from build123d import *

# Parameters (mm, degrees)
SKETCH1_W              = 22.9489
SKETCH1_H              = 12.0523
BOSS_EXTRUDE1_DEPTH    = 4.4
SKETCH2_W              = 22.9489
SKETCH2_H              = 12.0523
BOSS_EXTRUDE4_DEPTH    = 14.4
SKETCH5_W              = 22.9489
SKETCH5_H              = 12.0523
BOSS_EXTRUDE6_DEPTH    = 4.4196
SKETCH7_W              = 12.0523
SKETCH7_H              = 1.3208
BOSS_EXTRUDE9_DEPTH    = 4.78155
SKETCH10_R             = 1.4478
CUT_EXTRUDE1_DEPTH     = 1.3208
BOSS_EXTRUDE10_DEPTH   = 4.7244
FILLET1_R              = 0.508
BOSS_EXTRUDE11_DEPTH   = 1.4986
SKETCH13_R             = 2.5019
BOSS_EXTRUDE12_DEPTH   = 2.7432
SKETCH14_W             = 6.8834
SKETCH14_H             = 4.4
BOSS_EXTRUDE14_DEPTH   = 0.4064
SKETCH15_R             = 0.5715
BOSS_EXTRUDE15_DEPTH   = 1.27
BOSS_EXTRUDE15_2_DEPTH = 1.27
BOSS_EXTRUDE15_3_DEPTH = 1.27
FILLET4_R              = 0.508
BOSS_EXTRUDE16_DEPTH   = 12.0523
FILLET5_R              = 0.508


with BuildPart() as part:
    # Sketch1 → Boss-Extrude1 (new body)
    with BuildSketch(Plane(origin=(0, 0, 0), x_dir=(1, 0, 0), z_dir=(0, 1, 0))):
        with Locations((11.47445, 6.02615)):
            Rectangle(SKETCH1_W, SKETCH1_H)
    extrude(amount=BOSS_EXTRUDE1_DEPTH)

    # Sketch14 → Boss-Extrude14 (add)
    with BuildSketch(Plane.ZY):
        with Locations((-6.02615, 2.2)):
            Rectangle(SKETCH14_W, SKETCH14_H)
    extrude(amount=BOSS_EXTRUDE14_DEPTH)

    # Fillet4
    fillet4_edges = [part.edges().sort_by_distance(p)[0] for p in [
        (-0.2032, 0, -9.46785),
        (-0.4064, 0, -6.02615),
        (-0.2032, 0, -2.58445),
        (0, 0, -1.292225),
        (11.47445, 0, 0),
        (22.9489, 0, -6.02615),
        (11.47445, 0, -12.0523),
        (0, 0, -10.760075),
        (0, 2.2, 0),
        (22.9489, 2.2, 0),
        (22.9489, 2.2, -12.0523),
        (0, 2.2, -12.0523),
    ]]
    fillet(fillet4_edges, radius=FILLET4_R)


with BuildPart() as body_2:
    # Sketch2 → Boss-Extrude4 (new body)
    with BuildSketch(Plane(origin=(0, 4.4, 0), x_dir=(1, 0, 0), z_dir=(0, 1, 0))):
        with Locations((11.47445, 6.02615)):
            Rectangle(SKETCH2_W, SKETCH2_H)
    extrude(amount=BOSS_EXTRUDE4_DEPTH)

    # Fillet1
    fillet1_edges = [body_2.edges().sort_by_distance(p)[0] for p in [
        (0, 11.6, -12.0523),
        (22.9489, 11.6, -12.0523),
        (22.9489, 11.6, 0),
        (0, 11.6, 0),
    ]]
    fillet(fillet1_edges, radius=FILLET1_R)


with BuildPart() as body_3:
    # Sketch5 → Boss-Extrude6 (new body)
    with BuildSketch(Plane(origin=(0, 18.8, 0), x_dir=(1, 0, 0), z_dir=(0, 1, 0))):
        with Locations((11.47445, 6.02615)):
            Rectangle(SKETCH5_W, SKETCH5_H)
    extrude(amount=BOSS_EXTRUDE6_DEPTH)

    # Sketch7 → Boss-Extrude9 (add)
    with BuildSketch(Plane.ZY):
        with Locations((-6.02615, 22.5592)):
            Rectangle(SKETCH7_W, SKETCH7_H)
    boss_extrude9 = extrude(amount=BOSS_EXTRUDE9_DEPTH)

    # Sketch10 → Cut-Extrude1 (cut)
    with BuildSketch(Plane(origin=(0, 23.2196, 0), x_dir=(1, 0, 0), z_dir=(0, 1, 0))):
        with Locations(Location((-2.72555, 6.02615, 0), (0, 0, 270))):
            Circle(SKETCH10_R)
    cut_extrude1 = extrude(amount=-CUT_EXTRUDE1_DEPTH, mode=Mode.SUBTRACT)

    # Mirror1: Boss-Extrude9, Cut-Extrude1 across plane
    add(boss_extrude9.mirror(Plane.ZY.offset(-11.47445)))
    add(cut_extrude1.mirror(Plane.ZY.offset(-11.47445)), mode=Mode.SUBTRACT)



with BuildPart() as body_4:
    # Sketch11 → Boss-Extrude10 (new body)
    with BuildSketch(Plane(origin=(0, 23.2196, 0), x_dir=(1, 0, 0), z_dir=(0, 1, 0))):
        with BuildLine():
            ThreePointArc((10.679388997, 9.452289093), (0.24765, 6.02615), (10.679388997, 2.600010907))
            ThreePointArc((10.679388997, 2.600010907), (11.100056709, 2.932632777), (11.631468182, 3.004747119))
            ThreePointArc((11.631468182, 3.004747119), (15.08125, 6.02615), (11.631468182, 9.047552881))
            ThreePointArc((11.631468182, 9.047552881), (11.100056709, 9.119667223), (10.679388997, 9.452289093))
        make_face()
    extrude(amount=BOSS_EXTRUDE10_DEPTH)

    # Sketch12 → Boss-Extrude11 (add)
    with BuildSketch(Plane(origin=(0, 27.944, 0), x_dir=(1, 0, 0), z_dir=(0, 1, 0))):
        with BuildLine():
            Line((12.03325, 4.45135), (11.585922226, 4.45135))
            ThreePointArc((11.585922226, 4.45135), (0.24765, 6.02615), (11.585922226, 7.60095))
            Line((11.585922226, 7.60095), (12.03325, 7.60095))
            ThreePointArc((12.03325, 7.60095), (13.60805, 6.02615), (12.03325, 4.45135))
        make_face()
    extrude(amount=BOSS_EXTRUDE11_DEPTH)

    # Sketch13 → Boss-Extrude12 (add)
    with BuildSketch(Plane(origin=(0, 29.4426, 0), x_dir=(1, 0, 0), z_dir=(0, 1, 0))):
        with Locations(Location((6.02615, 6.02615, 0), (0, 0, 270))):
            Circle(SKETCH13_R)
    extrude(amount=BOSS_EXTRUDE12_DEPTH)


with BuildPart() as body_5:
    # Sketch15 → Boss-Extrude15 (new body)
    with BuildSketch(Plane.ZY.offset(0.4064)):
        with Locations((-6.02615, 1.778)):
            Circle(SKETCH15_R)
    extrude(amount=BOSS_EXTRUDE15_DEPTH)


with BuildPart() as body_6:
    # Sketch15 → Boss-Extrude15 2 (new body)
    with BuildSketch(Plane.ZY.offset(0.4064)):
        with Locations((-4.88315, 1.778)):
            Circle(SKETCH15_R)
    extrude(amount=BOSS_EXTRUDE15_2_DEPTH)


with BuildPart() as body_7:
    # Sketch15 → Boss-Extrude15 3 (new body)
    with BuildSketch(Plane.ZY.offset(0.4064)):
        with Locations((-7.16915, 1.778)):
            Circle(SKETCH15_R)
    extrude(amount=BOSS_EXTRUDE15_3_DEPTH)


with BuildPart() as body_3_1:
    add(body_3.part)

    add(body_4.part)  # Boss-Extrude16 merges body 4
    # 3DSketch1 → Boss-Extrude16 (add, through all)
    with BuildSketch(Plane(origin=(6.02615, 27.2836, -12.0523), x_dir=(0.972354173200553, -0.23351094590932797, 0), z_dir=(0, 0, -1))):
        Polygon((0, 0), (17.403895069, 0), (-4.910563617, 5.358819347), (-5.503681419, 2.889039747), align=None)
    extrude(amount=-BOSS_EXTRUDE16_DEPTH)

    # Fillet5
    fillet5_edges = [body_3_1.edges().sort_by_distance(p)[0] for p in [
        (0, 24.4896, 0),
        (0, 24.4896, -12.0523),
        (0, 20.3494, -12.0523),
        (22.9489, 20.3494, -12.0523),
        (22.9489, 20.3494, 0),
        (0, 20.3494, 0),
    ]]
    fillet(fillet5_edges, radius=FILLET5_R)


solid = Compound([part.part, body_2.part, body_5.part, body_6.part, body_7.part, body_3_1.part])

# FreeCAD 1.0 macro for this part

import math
import FreeCAD as App
import Part
import Sketcher
Q = App.Units.Quantity


def edges_at(feature, points):
    """Names of the edges that pass closest to the given points."""
    edges = feature.Shape.Edges
    near = lambda p: min(range(len(edges)), key=lambda i: edges[i].distToShape(Part.Vertex(*p))[0])
    return sorted({f"Edge{near(p) + 1}" for p in points})

doc = App.newDocument("Part")
body = doc.addObject("PartDesign::Body", "Body")

# Sketch on XZ plane
sketch1 = body.newObject("Sketcher::SketchObject", "Sketch")
sketch1.AttachmentSupport = (doc.getObject("XZ_Plane"), [""])
sketch1.MapMode = "FlatFace"
sketch1.addGeometry([
    Part.LineSegment(App.Vector(0, -12, 0), App.Vector(0, 0, 0)),
    Part.LineSegment(App.Vector(0, 0, 0), App.Vector(23, 0, 0)),
    Part.LineSegment(App.Vector(23, 0, 0), App.Vector(23, -12, 0)),
    Part.LineSegment(App.Vector(23, -12, 0), App.Vector(0, -12, 0)),
], False)
sketch1.addConstraint([
    Sketcher.Constraint("Coincident", 0, 2, 1, 1),
    Sketcher.Constraint("Coincident", 1, 2, 2, 1),
    Sketcher.Constraint("Coincident", 2, 2, 3, 1),
    Sketcher.Constraint("Coincident", 3, 2, 0, 1),
    Sketcher.Constraint("Vertical", 0),
    Sketcher.Constraint("Horizontal", 1),
    Sketcher.Constraint("Vertical", 2),
    Sketcher.Constraint("Horizontal", 3),
    Sketcher.Constraint("Coincident", 0, 2, -1, 1),
    Sketcher.Constraint("DistanceX", 1, 1, 1, 2, Q("0.9035 in")),
    Sketcher.Constraint("DistanceY", 0, 1, 0, 2, Q("0.4745 in")),
])
pad1 = body.newObject("PartDesign::Pad", "Pad")
pad1.Profile = sketch1
pad1.Length = 4.4
pad1.Reversed = True

# Sketch on YZ plane
sketch2 = body.newObject("Sketcher::SketchObject", "Sketch001")
sketch2.AttachmentSupport = (doc.getObject("YZ_Plane"), [""])
sketch2.MapMode = "FlatFace"
sketch2.addGeometry([
    Part.LineSegment(App.Vector(4.4, -9.5, 0), App.Vector(0, -9.5, 0)),
    Part.LineSegment(App.Vector(0, -9.5, 0), App.Vector(0, -2.6, 0)),
    Part.LineSegment(App.Vector(0, -2.6, 0), App.Vector(4.4, -2.6, 0)),
    Part.LineSegment(App.Vector(4.4, -2.6, 0), App.Vector(4.4, -9.5, 0)),
], False)
sketch2.addConstraint([
    Sketcher.Constraint("Coincident", 0, 2, 1, 1),
    Sketcher.Constraint("Coincident", 1, 2, 2, 1),
    Sketcher.Constraint("Coincident", 2, 2, 3, 1),
    Sketcher.Constraint("Coincident", 3, 2, 0, 1),
    Sketcher.Constraint("Horizontal", 0),
    Sketcher.Constraint("Vertical", 1),
    Sketcher.Constraint("Horizontal", 2),
    Sketcher.Constraint("Vertical", 3),
    Sketcher.Constraint("PointOnObject", 0, 2, -2),
    Sketcher.Constraint("DistanceY", 1, 1, 1, 2, Q("0.271 in")),
    Sketcher.Constraint("DistanceX", 0, 2, 0, 1, 4.4),
    Sketcher.Constraint("DistanceY", 0, 2, -1, 1, 9.46785),
])
pad2 = body.newObject("PartDesign::Pad", "Pad001")
pad2.Profile = sketch2
pad2.Length = Q("0.016 in")
pad2.Reversed = True
doc.recompute()

fillet = body.newObject("PartDesign::Fillet", "Fillet")
fillet.Base = (pad2, edges_at(pad2, [
    (-0.203, 0, -9.468),
    (-0.406, 0, -6.026),
    (-0.203, 0, -2.584),
    (0, 0, -1.292),
    (11.474, 0, 0),
    (22.949, 0, -6.026),
    (11.474, 0, -12.052),
    (0, 0, -10.76),
    (0, 2.2, 0),
    (22.949, 2.2, 0),
    (22.949, 2.2, -12.052),
    (0, 2.2, -12.052),
]))
fillet.Radius = Q("0.02 in")
body2 = doc.addObject("PartDesign::Body", "Body001")

# Sketch on XZ plane
sketch3 = body2.newObject("Sketcher::SketchObject", "Sketch002")
sketch3.AttachmentSupport = (doc.getObject("XZ_Plane001"), [""])
sketch3.MapMode = "FlatFace"
sketch3.AttachmentOffset = App.Placement(App.Vector(0, 0, -4.4), App.Rotation())
sketch3.addGeometry([
    Part.LineSegment(App.Vector(0, -12, 0), App.Vector(0, 0, 0)),
    Part.LineSegment(App.Vector(0, 0, 0), App.Vector(23, 0, 0)),
    Part.LineSegment(App.Vector(23, 0, 0), App.Vector(23, -12, 0)),
    Part.LineSegment(App.Vector(23, -12, 0), App.Vector(0, -12, 0)),
], False)
sketch3.addConstraint([
    Sketcher.Constraint("Coincident", 0, 2, 1, 1),
    Sketcher.Constraint("Coincident", 1, 2, 2, 1),
    Sketcher.Constraint("Coincident", 2, 2, 3, 1),
    Sketcher.Constraint("Coincident", 3, 2, 0, 1),
    Sketcher.Constraint("Vertical", 0),
    Sketcher.Constraint("Horizontal", 1),
    Sketcher.Constraint("Vertical", 2),
    Sketcher.Constraint("Horizontal", 3),
    Sketcher.Constraint("Coincident", 0, 2, -1, 1),
    Sketcher.Constraint("DistanceX", 1, 1, 1, 2, Q("0.9035 in")),
    Sketcher.Constraint("DistanceY", 0, 1, 0, 2, Q("0.4745 in")),
])
pad3 = body2.newObject("PartDesign::Pad", "Pad002")
pad3.Profile = sketch3
pad3.Length = 14.4
pad3.Reversed = True
doc.recompute()

fillet2 = body2.newObject("PartDesign::Fillet", "Fillet001")
fillet2.Base = (pad3, edges_at(pad3, [
    (0, 11.6, -12.052),
    (22.949, 11.6, -12.052),
    (22.949, 11.6, 0),
    (0, 11.6, 0),
]))
fillet2.Radius = Q("0.02 in")
body3 = doc.addObject("PartDesign::Body", "Body002")

# Sketch on XZ plane
sketch4 = body3.newObject("Sketcher::SketchObject", "Sketch003")
sketch4.AttachmentSupport = (doc.getObject("XZ_Plane002"), [""])
sketch4.MapMode = "FlatFace"
sketch4.AttachmentOffset = App.Placement(App.Vector(0, 0, -18.8), App.Rotation())
sketch4.addGeometry([
    Part.LineSegment(App.Vector(0, -12, 0), App.Vector(0, 0, 0)),
    Part.LineSegment(App.Vector(0, 0, 0), App.Vector(23, 0, 0)),
    Part.LineSegment(App.Vector(23, 0, 0), App.Vector(23, -12, 0)),
    Part.LineSegment(App.Vector(23, -12, 0), App.Vector(0, -12, 0)),
], False)
sketch4.addConstraint([
    Sketcher.Constraint("Coincident", 0, 2, 1, 1),
    Sketcher.Constraint("Coincident", 1, 2, 2, 1),
    Sketcher.Constraint("Coincident", 2, 2, 3, 1),
    Sketcher.Constraint("Coincident", 3, 2, 0, 1),
    Sketcher.Constraint("Vertical", 0),
    Sketcher.Constraint("Horizontal", 1),
    Sketcher.Constraint("Vertical", 2),
    Sketcher.Constraint("Horizontal", 3),
    Sketcher.Constraint("Coincident", 0, 2, -1, 1),
    Sketcher.Constraint("DistanceX", 1, 1, 1, 2, Q("0.9035 in")),
    Sketcher.Constraint("DistanceY", 0, 1, 0, 2, Q("0.4745 in")),
])
pad4 = body3.newObject("PartDesign::Pad", "Pad003")
pad4.Profile = sketch4
pad4.Length = Q("0.174 in")
pad4.Reversed = True

# Sketch on YZ plane
sketch5 = body3.newObject("Sketcher::SketchObject", "Sketch004")
sketch5.AttachmentSupport = (doc.getObject("YZ_Plane002"), [""])
sketch5.MapMode = "FlatFace"
sketch5.addGeometry([
    Part.LineSegment(App.Vector(23.2, -12.1, 0), App.Vector(21.9, -12.1, 0)),
    Part.LineSegment(App.Vector(21.9, -12.1, 0), App.Vector(21.9, 0, 0)),
    Part.LineSegment(App.Vector(21.9, 0, 0), App.Vector(23.2, 0, 0)),
    Part.LineSegment(App.Vector(23.2, 0, 0), App.Vector(23.2, -12.1, 0)),
], False)
sketch5.addConstraint([
    Sketcher.Constraint("Coincident", 0, 2, 1, 1),
    Sketcher.Constraint("Coincident", 1, 2, 2, 1),
    Sketcher.Constraint("Coincident", 2, 2, 3, 1),
    Sketcher.Constraint("Coincident", 3, 2, 0, 1),
    Sketcher.Constraint("Horizontal", 0),
    Sketcher.Constraint("Vertical", 1),
    Sketcher.Constraint("Horizontal", 2),
    Sketcher.Constraint("Vertical", 3),
    Sketcher.Constraint("PointOnObject", 1, 2, -1),
    Sketcher.Constraint("DistanceX", 0, 2, 0, 1, Q("0.052 in")),
    Sketcher.Constraint("DistanceY", 1, 1, 1, 2, Q("0.4745 in")),
    Sketcher.Constraint("DistanceX", -1, 1, 0, 2, 21.8988),
])
pad5 = body3.newObject("PartDesign::Pad", "Pad004")
pad5.Profile = sketch5
pad5.Length = 4.78155
pad5.Reversed = True

# Sketch on XZ plane
sketch6 = body3.newObject("Sketcher::SketchObject", "Sketch005")
sketch6.AttachmentSupport = (doc.getObject("XZ_Plane002"), [""])
sketch6.MapMode = "FlatFace"
sketch6.AttachmentOffset = App.Placement(App.Vector(0, 0, -23.2196), App.Rotation())
sketch6.addGeometry(Part.Circle(App.Vector(-2.7, -6, 0), App.Vector(0, 0, 1), 1.4), False)
sketch6.addConstraint([
    Sketcher.Constraint("Diameter", 0, Q("0.114 in")),
    Sketcher.Constraint("DistanceX", 0, 3, -1, 1, 2.72555),
    Sketcher.Constraint("DistanceY", 0, 3, -1, 1, 6.02615),
])
pocket1 = body3.newObject("PartDesign::Pocket", "Pocket")
pocket1.Profile = sketch6
pocket1.Length = Q("0.052 in")
pocket1.Reversed = True
doc.recompute()

datumplane = body3.newObject("PartDesign::Plane", "DatumPlane")
datumplane.AttachmentSupport = (doc.getObject("YZ_Plane002"), [""])
datumplane.MapMode = "FlatFace"
datumplane.AttachmentOffset = App.Placement(App.Vector(0, 0, 11.47445), App.Rotation())
mirrored = body3.newObject("PartDesign::Mirrored", "Mirrored")
mirrored.Originals = [pad5, pocket1]
mirrored.MirrorPlane = (datumplane, [""])
body3.Tip = mirrored
body4 = doc.addObject("PartDesign::Body", "Body003")

# Sketch on XZ plane
sketch7 = body4.newObject("Sketcher::SketchObject", "Sketch006")
sketch7.AttachmentSupport = (doc.getObject("XZ_Plane003"), [""])
sketch7.MapMode = "FlatFace"
sketch7.AttachmentOffset = App.Placement(App.Vector(0, 0, -23.2196), App.Rotation())
sketch7.addGeometry([
    Part.ArcOfCircle(Part.Circle(App.Vector(6, -6, 0), App.Vector(0, 0, 1), 5.8), math.radians(36), math.radians(324)),
    Part.ArcOfCircle(Part.Circle(App.Vector(11.5, -2, 0), App.Vector(0, 0, 1), 1), math.radians(-144), math.radians(-82)),
    Part.ArcOfCircle(Part.Circle(App.Vector(12, -6, 0), App.Vector(0, 0, 1), 3), math.radians(-98), math.radians(98)),
    Part.ArcOfCircle(Part.Circle(App.Vector(11.5, -10.1, 0), App.Vector(0, 0, 1), 1), math.radians(82), math.radians(144)),
], False)
sketch7.addConstraint([
    Sketcher.Constraint("Tangent", 0, 1, 1, 1),
    Sketcher.Constraint("Tangent", 1, 2, 2, 2),
    Sketcher.Constraint("Tangent", 2, 1, 3, 1),
    Sketcher.Constraint("Tangent", 3, 2, 0, 2),
    Sketcher.Constraint("Equal", 1, 3),
    Sketcher.Constraint("Horizontal", 0, 3, 2, 3),
    Sketcher.Constraint("Radius", 1, Q("0.04 in")),
    Sketcher.Constraint("Radius", 2, Q("0.12 in")),
    Sketcher.Constraint("Radius", 0, Q("0.2275 in")),
    Sketcher.Constraint("DistanceX", 0, 3, 2, 3, Q("0.2365 in")),
    Sketcher.Constraint("DistanceX", -1, 1, 0, 3, 6.02615),
    Sketcher.Constraint("DistanceY", 0, 3, -1, 1, 6.02615),
])
pad6 = body4.newObject("PartDesign::Pad", "Pad005")
pad6.Profile = sketch7
pad6.Length = Q("0.186 in")
pad6.Reversed = True

# Sketch on XZ plane
sketch8 = body4.newObject("Sketcher::SketchObject", "Sketch007")
sketch8.AttachmentSupport = (doc.getObject("XZ_Plane003"), [""])
sketch8.MapMode = "FlatFace"
sketch8.AttachmentOffset = App.Placement(App.Vector(0, 0, -27.944), App.Rotation())
sketch8.addGeometry([
    Part.LineSegment(App.Vector(11.59, -4.45, 0), App.Vector(12.03, -4.45, 0)),
    Part.ArcOfCircle(Part.Circle(App.Vector(12.03, -6.03, 0), App.Vector(0, 0, 1), 1.57), math.radians(-90), math.radians(90)),
    Part.LineSegment(App.Vector(12.03, -7.6, 0), App.Vector(11.59, -7.6, 0)),
    Part.ArcOfCircle(Part.Circle(App.Vector(6.03, -6.03, 0), App.Vector(0, 0, 1), 5.78), math.radians(16), math.radians(344)),
], False)
sketch8.addConstraint([
    Sketcher.Constraint("Tangent", 0, 2, 1, 2),
    Sketcher.Constraint("Tangent", 1, 1, 2, 1),
    Sketcher.Constraint("Coincident", 2, 2, 3, 2),
    Sketcher.Constraint("Coincident", 3, 1, 0, 1),
    Sketcher.Constraint("Horizontal", 0),
    Sketcher.Constraint("Horizontal", 2),
    Sketcher.Constraint("Horizontal", 1, 3, 3, 3),
    Sketcher.Constraint("Radius", 1, Q("0.062 in")),
    Sketcher.Constraint("Radius", 3, Q("0.2275 in")),
    Sketcher.Constraint("DistanceX", 3, 3, 1, 3, Q("0.2365 in")),
    Sketcher.Constraint("DistanceX", -1, 1, 1, 3, 12.03325),
    Sketcher.Constraint("DistanceY", 1, 3, -1, 1, 6.02615),
])
pad7 = body4.newObject("PartDesign::Pad", "Pad006")
pad7.Profile = sketch8
pad7.Length = Q("0.059 in")
pad7.Reversed = True

# Sketch on XZ plane
sketch9 = body4.newObject("Sketcher::SketchObject", "Sketch008")
sketch9.AttachmentSupport = (doc.getObject("XZ_Plane003"), [""])
sketch9.MapMode = "FlatFace"
sketch9.AttachmentOffset = App.Placement(App.Vector(0, 0, -29.4426), App.Rotation())
sketch9.addGeometry(Part.Circle(App.Vector(6, -6, 0), App.Vector(0, 0, 1), 2.5), False)
sketch9.addConstraint([
    Sketcher.Constraint("Diameter", 0, Q("0.197 in")),
    Sketcher.Constraint("DistanceX", -1, 1, 0, 3, 6.02615),
    Sketcher.Constraint("DistanceY", 0, 3, -1, 1, 6.02615),
])
pad8 = body4.newObject("PartDesign::Pad", "Pad007")
pad8.Profile = sketch9
pad8.Length = Q("0.108 in")
pad8.Reversed = True
body5 = doc.addObject("PartDesign::Body", "Body004")

# Sketch on YZ plane
sketch10 = body5.newObject("Sketcher::SketchObject", "Sketch009")
sketch10.AttachmentSupport = (doc.getObject("YZ_Plane004"), [""])
sketch10.MapMode = "FlatFace"
sketch10.AttachmentOffset = App.Placement(App.Vector(0, 0, -0.016 * 25.4), App.Rotation())
sketch10.addGeometry(Part.Circle(App.Vector(1.8, -6, 0), App.Vector(0, 0, 1), 0.6), False)
sketch10.addConstraint([
    Sketcher.Constraint("Diameter", 0, Q("0.045 in")),
    Sketcher.Constraint("DistanceX", -1, 1, 0, 3, Q("0.07 in")),
    Sketcher.Constraint("DistanceY", 0, 3, -1, 1, 6.02615),
])
pad9 = body5.newObject("PartDesign::Pad", "Pad008")
pad9.Profile = sketch10
pad9.Length = Q("0.05 in")
pad9.Reversed = True
body6 = doc.addObject("PartDesign::Body", "Body005")

# Sketch on YZ plane
sketch11 = body6.newObject("Sketcher::SketchObject", "Sketch010")
sketch11.AttachmentSupport = (doc.getObject("YZ_Plane005"), [""])
sketch11.MapMode = "FlatFace"
sketch11.AttachmentOffset = App.Placement(App.Vector(0, 0, -0.016 * 25.4), App.Rotation())
sketch11.addGeometry(Part.Circle(App.Vector(1.8, -4.9, 0), App.Vector(0, 0, 1), 0.6), False)
sketch11.addConstraint([
    Sketcher.Constraint("Diameter", 0, Q("0.045 in")),
    Sketcher.Constraint("DistanceX", -1, 1, 0, 3, Q("0.07 in")),
    Sketcher.Constraint("DistanceY", 0, 3, -1, 1, 4.88315),
])
pad10 = body6.newObject("PartDesign::Pad", "Pad009")
pad10.Profile = sketch11
pad10.Length = Q("0.05 in")
pad10.Reversed = True
body7 = doc.addObject("PartDesign::Body", "Body006")

# Sketch on YZ plane
sketch12 = body7.newObject("Sketcher::SketchObject", "Sketch011")
sketch12.AttachmentSupport = (doc.getObject("YZ_Plane006"), [""])
sketch12.MapMode = "FlatFace"
sketch12.AttachmentOffset = App.Placement(App.Vector(0, 0, -0.016 * 25.4), App.Rotation())
sketch12.addGeometry(Part.Circle(App.Vector(1.8, -7.2, 0), App.Vector(0, 0, 1), 0.6), False)
sketch12.addConstraint([
    Sketcher.Constraint("Diameter", 0, Q("0.045 in")),
    Sketcher.Constraint("DistanceX", -1, 1, 0, 3, Q("0.07 in")),
    Sketcher.Constraint("DistanceY", 0, 3, -1, 1, 7.16915),
])
pad11 = body7.newObject("PartDesign::Pad", "Pad010")
pad11.Profile = sketch12
pad11.Length = Q("0.05 in")
pad11.Reversed = True
doc.recompute()

boolean = body3.newObject("PartDesign::Boolean", "Boolean")
boolean.Type = "Fuse"
boolean.addObjects([body4])

# Sketch on XY plane
sketch13 = body3.newObject("Sketcher::SketchObject", "Sketch012")
sketch13.AttachmentSupport = (doc.getObject("XY_Plane002"), [""])
sketch13.MapMode = "FlatFace"
sketch13.AttachmentOffset = App.Placement(App.Vector(0, 0, -0.4745 * 25.4), App.Rotation())
sketch13.addGeometry([
    Part.LineSegment(App.Vector(6, 27.3, 0), App.Vector(22.9, 23.2, 0)),
    Part.LineSegment(App.Vector(22.9, 23.2, 0), App.Vector(0, 23.2, 0)),
    Part.LineSegment(App.Vector(0, 23.2, 0), App.Vector(0, 25.8, 0)),
    Part.LineSegment(App.Vector(0, 25.8, 0), App.Vector(6, 27.3, 0)),
], False)
sketch13.addConstraint([
    Sketcher.Constraint("Coincident", 0, 2, 1, 1),
    Sketcher.Constraint("Coincident", 1, 2, 2, 1),
    Sketcher.Constraint("Coincident", 2, 2, 3, 1),
    Sketcher.Constraint("Coincident", 3, 2, 0, 1),
    Sketcher.Constraint("Horizontal", 1),
    Sketcher.Constraint("Vertical", 2),
    Sketcher.Constraint("PointOnObject", 1, 2, -2),
    Sketcher.Constraint("DistanceY", 2, 1, 2, 2, Q("0.1 in")),
    Sketcher.Constraint("DistanceY", 2, 2, 3, 2, Q("0.06 in")),
    Sketcher.Constraint("DistanceX", 1, 2, 1, 1, Q("0.9035 in")),
    Sketcher.Constraint("DistanceY", -1, 1, 0, 2, 23.2196),
    Sketcher.Constraint("Distance", 3, 6.215872),
])
pad12 = body3.newObject("PartDesign::Pad", "Pad011")
pad12.Profile = sketch13
pad12.Length = Q("0.4745 in")
doc.recompute()

fillet3 = body3.newObject("PartDesign::Fillet", "Fillet002")
fillet3.Base = (pad12, edges_at(pad12, [
    (0, 24.49, 0),
    (0, 24.49, -12.052),
    (0, 20.349, -12.052),
    (22.949, 20.349, -12.052),
    (22.949, 20.349, 0),
    (0, 20.349, 0),
]))
fillet3.Radius = Q("0.02 in")

doc.recompute()
